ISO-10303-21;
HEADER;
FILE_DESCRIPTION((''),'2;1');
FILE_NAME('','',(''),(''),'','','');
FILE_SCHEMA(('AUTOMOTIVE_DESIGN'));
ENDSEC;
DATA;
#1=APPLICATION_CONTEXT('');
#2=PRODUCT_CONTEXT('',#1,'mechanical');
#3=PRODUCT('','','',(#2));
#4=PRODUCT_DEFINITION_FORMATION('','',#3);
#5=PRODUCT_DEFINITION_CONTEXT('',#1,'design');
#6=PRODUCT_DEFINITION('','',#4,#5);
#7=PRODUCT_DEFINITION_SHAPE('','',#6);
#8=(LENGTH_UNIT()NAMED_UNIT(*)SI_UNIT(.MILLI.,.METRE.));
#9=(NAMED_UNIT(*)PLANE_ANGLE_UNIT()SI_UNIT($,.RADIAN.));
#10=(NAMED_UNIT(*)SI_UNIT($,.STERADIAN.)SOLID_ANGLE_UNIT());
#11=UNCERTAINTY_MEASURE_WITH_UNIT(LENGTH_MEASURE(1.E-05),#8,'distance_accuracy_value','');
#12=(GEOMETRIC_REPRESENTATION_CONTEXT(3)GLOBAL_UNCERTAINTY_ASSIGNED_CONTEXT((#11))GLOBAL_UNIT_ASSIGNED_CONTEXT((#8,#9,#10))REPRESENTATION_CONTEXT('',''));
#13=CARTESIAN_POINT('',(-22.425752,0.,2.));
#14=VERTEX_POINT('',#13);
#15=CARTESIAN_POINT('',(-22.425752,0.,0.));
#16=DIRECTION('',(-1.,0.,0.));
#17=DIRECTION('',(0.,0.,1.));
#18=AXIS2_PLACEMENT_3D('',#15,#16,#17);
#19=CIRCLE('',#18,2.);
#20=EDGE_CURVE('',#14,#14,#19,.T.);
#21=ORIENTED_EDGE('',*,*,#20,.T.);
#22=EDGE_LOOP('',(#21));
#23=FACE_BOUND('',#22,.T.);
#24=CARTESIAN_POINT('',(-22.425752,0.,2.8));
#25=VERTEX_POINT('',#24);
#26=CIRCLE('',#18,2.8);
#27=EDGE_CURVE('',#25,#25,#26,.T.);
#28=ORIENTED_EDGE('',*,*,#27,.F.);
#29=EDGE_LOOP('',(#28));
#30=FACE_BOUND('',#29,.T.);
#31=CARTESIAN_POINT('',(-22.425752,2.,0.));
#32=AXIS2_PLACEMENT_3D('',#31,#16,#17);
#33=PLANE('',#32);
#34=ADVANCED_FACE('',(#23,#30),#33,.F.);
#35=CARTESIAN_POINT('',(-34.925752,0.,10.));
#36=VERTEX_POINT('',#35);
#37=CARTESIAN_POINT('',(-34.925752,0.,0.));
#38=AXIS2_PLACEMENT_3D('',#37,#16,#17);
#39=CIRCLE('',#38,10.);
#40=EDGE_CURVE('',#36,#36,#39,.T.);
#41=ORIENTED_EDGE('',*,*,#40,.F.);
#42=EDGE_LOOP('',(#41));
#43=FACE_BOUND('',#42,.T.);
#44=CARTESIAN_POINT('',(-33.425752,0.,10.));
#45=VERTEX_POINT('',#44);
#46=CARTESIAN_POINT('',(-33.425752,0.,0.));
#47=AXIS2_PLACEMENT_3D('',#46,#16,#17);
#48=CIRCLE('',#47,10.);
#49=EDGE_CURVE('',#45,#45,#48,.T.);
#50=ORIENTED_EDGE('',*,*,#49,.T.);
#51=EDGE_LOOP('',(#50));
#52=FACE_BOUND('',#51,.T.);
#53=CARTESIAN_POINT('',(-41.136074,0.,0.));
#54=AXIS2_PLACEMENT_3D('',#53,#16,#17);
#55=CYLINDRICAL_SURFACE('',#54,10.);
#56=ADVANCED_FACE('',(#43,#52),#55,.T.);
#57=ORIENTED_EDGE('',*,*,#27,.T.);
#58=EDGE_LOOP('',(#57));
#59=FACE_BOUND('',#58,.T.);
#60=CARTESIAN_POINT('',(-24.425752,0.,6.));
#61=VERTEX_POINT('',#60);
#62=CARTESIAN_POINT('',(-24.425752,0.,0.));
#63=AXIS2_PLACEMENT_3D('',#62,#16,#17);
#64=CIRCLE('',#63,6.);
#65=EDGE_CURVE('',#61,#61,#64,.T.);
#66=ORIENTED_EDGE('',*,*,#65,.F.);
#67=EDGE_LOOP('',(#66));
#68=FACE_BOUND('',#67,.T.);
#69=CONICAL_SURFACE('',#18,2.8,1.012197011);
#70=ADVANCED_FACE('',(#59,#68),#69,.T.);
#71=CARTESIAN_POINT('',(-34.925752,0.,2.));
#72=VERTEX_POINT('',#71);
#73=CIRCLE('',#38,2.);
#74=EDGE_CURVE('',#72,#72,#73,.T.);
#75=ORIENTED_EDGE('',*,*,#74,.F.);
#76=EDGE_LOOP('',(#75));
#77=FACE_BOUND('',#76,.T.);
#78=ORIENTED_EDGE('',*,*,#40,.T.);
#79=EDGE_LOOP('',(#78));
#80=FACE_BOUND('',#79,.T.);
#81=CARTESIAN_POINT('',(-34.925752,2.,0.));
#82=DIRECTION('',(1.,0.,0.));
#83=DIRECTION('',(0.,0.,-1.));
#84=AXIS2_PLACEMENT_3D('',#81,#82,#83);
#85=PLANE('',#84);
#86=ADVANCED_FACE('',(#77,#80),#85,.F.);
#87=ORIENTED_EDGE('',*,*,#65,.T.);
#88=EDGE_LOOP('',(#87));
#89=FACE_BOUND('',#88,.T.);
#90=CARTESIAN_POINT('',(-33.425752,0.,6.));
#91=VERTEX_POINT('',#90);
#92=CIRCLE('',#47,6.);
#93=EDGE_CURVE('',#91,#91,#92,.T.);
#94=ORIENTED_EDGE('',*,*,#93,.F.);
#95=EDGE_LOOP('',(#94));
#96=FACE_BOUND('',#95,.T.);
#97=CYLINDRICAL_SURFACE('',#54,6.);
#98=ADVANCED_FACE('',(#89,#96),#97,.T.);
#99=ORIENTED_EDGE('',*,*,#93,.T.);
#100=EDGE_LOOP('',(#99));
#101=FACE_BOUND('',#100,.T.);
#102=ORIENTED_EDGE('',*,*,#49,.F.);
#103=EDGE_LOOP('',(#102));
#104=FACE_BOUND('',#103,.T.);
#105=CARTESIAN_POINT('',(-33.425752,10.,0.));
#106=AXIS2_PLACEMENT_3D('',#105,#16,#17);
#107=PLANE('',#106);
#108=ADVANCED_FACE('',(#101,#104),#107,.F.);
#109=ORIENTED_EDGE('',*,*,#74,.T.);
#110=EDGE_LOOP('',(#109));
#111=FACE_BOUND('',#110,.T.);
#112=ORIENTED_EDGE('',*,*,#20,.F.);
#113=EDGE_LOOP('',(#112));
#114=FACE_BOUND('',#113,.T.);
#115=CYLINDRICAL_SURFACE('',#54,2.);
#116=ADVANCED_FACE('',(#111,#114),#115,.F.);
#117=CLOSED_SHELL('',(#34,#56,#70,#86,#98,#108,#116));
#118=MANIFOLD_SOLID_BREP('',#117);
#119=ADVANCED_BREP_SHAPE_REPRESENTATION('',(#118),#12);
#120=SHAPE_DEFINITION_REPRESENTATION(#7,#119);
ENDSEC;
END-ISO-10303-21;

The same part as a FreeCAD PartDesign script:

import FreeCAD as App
import Part
import Sketcher

doc = App.newDocument("Part")
body = doc.addObject("PartDesign::Body", "Body")

sketch1 = body.newObject("Sketcher::SketchObject", "Sketch")
sketch1.AttachmentSupport = (doc.getObject("XY_Plane"), [""])
sketch1.MapMode = "FlatFace"
sketch1.addGeometry([
    Part.LineSegment(App.Vector(-34.9, 10, 0), App.Vector(-34.9, 2, 0)),
    Part.LineSegment(App.Vector(-34.9, 2, 0), App.Vector(-22.4, 2, 0)),
    Part.LineSegment(App.Vector(-22.4, 2, 0), App.Vector(-22.4, 2.8, 0)),
    Part.LineSegment(App.Vector(-22.4, 2.8, 0), App.Vector(-24.4, 6, 0)),
    Part.LineSegment(App.Vector(-24.4, 6, 0), App.Vector(-33.4, 6, 0)),
    Part.LineSegment(App.Vector(-33.4, 6, 0), App.Vector(-33.4, 10, 0)),
    Part.LineSegment(App.Vector(-33.4, 10, 0), App.Vector(-34.9, 10, 0)),
], False)
sketch1.addConstraint([
    Sketcher.Constraint("Coincident", 0, 2, 1, 1),
    Sketcher.Constraint("Coincident", 1, 2, 2, 1),
    Sketcher.Constraint("Coincident", 2, 2, 3, 1),
    Sketcher.Constraint("Coincident", 3, 2, 4, 1),
    Sketcher.Constraint("Coincident", 4, 2, 5, 1),
    Sketcher.Constraint("Coincident", 5, 2, 6, 1),
    Sketcher.Constraint("Coincident", 6, 2, 0, 1),
    Sketcher.Constraint("Vertical", 0),
    Sketcher.Constraint("Horizontal", 1),
    Sketcher.Constraint("Vertical", 2),
    Sketcher.Constraint("Horizontal", 4),
    Sketcher.Constraint("Vertical", 5),
    Sketcher.Constraint("Horizontal", 6),
    Sketcher.Constraint("DistanceX", 4, 2, 4, 1, 9.0),
    Sketcher.Constraint("DistanceY", 0, 2, 0, 1, 8.0),
    Sketcher.Constraint("DistanceY", 5, 1, 5, 2, 4.0),
    Sketcher.Constraint("DistanceX", 1, 1, 1, 2, 12.5),
    Sketcher.Constraint("DistanceX", 6, 2, 6, 1, 1.5),
    Sketcher.Constraint("DistanceY", 2, 1, 2, 2, 0.8),
    Sketcher.Constraint("DistanceY", -1, 1, 0, 2, 2.0),
    Sketcher.Constraint("DistanceX", 0, 2, -1, 1, 34.925752),
])
revolution = body.newObject("PartDesign::Revolution", "Revolution")
revolution.Profile = sketch1
revolution.ReferenceAxis = (sketch1, ["H_Axis"])
revolution.Angle = 360

doc.recompute()
